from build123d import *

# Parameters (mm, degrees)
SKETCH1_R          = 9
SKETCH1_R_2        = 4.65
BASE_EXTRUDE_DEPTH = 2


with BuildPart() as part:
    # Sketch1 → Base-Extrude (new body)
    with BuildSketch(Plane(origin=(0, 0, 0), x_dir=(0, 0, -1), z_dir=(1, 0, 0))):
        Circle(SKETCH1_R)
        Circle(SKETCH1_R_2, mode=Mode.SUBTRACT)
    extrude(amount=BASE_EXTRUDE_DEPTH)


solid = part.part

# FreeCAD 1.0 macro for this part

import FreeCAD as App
import Part
import Sketcher
from FreeCAD import Vector
Q = App.Units.Quantity

doc = App.newDocument("Part")
body = doc.addObject("PartDesign::Body", "Body")

sketch1 = doc.addObject("Sketcher::SketchObject", "Sketch")
body.addObject(sketch1)
sketch1.AttachmentSupport = (doc.YZ_Plane, [""])
sketch1.MapMode = "FlatFace"
sketch1.addGeometry([
    Part.Circle(Vector(0, 0, 0), Vector(0, 0, 1), 9),
    Part.Circle(Vector(0, 0, 0), Vector(0, 0, 1), 4.7),
], False)
sketch1.addConstraint([
    Sketcher.Constraint("Coincident", 0, 3, -1, 1),
    Sketcher.Constraint("Coincident", 1, 3, -1, 1),
    Sketcher.Constraint("Diameter", 0, Q("18 mm")),
    Sketcher.Constraint("Diameter", 1, Q("9.3 mm")),
])
pad1 = doc.addObject("PartDesign::Pad", "Pad")
body.addObject(pad1)
pad1.Profile = sketch1
pad1.Length = 2

doc.recompute()
